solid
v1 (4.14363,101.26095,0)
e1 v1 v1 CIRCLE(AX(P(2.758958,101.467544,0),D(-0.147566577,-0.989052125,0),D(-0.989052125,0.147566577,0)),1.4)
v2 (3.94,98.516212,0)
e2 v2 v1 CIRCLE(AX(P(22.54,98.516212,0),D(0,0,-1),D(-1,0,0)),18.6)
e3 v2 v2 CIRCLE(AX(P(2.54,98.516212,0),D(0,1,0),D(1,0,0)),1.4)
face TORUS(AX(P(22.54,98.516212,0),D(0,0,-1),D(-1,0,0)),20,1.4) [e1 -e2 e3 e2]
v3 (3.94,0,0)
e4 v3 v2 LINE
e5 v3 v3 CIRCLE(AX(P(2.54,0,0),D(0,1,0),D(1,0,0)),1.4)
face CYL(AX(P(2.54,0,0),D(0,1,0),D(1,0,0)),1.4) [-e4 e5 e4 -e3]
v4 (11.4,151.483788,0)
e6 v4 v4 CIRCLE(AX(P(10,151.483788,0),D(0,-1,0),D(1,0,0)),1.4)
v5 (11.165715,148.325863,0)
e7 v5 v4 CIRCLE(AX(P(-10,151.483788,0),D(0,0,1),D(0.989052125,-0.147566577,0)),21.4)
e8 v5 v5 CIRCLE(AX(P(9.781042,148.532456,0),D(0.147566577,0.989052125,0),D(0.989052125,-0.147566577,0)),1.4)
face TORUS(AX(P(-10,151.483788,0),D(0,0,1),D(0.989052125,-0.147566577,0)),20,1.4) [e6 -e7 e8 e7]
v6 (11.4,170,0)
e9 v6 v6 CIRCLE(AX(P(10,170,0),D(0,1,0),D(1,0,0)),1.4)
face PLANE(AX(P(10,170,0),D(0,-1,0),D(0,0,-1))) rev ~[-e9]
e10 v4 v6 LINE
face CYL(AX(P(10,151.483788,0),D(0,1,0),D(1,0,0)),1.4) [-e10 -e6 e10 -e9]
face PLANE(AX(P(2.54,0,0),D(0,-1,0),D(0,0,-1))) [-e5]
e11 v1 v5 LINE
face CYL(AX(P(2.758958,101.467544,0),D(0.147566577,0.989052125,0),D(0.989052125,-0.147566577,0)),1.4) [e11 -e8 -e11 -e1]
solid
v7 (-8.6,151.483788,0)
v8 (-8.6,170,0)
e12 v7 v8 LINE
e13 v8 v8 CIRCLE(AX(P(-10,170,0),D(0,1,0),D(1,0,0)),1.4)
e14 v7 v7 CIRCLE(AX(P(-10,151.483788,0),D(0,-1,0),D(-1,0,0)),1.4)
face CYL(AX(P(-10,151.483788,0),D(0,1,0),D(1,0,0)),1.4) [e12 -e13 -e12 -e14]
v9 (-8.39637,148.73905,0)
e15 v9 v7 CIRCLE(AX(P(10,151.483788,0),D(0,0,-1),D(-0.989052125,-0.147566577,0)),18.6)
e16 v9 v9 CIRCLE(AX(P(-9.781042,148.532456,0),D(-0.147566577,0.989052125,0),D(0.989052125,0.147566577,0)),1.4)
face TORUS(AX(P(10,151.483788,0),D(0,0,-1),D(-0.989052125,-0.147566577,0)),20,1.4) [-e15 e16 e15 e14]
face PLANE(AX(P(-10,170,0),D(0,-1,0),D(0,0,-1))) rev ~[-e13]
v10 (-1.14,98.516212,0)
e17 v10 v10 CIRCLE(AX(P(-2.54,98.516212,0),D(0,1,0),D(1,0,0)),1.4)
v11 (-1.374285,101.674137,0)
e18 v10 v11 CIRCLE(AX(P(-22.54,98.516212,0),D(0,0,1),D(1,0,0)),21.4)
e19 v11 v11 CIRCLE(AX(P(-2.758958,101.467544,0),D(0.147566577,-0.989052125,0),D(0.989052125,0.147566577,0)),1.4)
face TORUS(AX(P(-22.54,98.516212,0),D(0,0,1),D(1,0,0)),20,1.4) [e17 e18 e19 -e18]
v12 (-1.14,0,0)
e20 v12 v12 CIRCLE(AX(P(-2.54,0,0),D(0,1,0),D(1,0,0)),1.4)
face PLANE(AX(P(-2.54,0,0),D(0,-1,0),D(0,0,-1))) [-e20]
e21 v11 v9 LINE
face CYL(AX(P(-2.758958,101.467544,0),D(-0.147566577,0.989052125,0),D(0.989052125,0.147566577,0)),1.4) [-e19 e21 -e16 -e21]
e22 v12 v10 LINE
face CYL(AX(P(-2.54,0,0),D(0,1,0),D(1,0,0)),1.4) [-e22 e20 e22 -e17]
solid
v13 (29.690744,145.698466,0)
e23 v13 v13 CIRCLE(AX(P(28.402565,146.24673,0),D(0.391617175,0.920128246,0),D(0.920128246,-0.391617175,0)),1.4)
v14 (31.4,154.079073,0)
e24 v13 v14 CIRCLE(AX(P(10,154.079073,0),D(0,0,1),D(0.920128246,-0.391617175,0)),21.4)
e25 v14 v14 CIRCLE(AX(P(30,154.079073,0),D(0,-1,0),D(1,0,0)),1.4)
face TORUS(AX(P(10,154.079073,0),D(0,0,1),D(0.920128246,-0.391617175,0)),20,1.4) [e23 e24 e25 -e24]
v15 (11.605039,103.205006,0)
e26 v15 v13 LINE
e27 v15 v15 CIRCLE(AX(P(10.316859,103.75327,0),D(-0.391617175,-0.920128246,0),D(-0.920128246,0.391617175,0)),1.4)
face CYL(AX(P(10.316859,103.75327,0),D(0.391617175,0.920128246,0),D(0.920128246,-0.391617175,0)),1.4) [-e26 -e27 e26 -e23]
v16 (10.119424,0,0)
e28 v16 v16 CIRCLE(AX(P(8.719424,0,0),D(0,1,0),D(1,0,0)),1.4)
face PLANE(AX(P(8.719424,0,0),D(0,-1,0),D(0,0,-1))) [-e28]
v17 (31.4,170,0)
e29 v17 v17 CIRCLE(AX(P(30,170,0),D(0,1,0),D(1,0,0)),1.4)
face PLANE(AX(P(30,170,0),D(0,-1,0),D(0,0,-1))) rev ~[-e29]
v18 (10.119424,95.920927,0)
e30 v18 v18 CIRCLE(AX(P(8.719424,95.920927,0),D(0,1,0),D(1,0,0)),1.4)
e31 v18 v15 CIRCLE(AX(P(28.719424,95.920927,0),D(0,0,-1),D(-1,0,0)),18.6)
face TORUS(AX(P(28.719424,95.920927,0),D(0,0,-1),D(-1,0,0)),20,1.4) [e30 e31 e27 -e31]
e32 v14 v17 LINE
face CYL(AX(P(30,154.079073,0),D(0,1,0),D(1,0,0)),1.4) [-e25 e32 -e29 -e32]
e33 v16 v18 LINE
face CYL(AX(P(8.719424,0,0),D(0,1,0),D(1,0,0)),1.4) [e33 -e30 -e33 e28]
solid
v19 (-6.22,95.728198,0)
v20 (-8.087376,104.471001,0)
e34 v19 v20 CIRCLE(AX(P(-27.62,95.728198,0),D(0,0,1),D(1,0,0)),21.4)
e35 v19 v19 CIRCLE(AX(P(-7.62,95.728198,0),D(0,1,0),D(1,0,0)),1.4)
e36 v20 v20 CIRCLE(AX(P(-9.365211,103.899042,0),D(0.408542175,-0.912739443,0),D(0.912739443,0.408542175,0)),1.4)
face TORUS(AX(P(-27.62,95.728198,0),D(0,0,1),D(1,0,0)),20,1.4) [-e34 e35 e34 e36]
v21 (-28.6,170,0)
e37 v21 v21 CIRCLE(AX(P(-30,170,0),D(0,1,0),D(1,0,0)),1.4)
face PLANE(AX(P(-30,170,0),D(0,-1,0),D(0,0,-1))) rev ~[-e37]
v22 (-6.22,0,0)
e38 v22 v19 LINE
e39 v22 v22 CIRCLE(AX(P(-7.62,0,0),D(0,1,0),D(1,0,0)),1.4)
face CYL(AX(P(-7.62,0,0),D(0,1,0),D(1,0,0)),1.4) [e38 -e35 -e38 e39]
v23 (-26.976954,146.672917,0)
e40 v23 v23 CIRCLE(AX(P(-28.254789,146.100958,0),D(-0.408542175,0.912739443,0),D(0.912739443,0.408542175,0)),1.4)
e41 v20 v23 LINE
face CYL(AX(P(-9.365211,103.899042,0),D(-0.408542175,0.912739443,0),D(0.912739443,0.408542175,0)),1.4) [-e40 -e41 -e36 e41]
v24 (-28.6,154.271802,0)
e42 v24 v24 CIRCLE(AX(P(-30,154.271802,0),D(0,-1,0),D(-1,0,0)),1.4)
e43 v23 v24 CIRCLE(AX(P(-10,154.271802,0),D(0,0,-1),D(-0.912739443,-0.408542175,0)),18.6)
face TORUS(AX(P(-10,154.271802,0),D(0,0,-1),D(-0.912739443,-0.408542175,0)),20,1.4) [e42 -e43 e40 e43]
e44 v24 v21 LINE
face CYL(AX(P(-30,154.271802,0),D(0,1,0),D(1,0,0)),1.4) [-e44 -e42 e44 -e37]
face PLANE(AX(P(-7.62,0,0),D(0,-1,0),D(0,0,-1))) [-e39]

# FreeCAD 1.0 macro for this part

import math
import FreeCAD as App
import Part
import Sketcher

doc = App.newDocument("Part")
body = doc.addObject("PartDesign::Body", "Body")

# Sketch on XZ plane
sketch1 = doc.addObject("Sketcher::SketchObject", "Sketch")
body.addObject(sketch1)
sketch1.AttachmentSupport = (doc.XZ_Plane, [""])
sketch1.MapMode = "FlatFace"
sketch1.addGeometry(Part.Circle(App.Vector(-7.62, 0, 0), App.Vector(0, 0, 1), 1.4), False)
sketch1.addConstraint([
    Sketcher.Constraint("PointOnObject", 0, 3, -1),
    Sketcher.Constraint("Diameter", 0, 2.8),
    Sketcher.Constraint("DistanceX", 0, 3, -1, 1, 7.62),
])

# Sketch on XY plane
sketch2 = doc.addObject("Sketcher::SketchObject", "Sketch001")
body.addObject(sketch2)
sketch2.AttachmentSupport = (doc.XY_Plane, [""])
sketch2.MapMode = "FlatFace"
sketch2.addGeometry([
    Part.LineSegment(App.Vector(-7.62, 0, 0), App.Vector(-7.62, 95.728198, 0)),  # 0
    Part.ArcOfCircle(Part.Circle(App.Vector(-27.62, 95.728198, 0), App.Vector(0, 0, 1), 20), math.radians(0), math.radians(24.113289)),  # 1
    Part.LineSegment(App.Vector(-9.365211, 103.899042, 0), App.Vector(-28.254789, 146.100958, 0)),  # 2
    Part.ArcOfCircle(Part.Circle(App.Vector(-10, 154.271802, 0), App.Vector(0, 0, 1), 20), math.radians(180), math.radians(204.113289)),  # 3
    Part.LineSegment(App.Vector(-30, 154.271802, 0), App.Vector(-30, 170, 0)),  # 4
], False)
sketch2.addConstraint([
    Sketcher.Constraint("Tangent", 0, 2, 1, 1),
    Sketcher.Constraint("Tangent", 1, 2, 2, 1),
    Sketcher.Constraint("Tangent", 2, 2, 3, 2),
    Sketcher.Constraint("Tangent", 3, 1, 4, 1),
    Sketcher.Constraint("Vertical", 0),
    Sketcher.Constraint("Vertical", 4),
    Sketcher.Constraint("Equal", 1, 3),
    Sketcher.Constraint("PointOnObject", 0, 1, -1),
    Sketcher.Constraint("Radius", 1, 20.0),
    Sketcher.Constraint("DistanceX", 3, 3, -1, 1, 10.0),
    Sketcher.Constraint("DistanceY", -1, 1, 4, 2, 170.0),
    Sketcher.Constraint("DistanceX", 1, 3, -1, 1, 27.62),
    Sketcher.Constraint("DistanceY", 0, 1, 0, 2, 95.728198),
    Sketcher.Constraint("DistanceY", 4, 1, 4, 2, 15.728198),
])
doc.recompute()

additivepipe = doc.addObject("PartDesign::AdditivePipe", "AdditivePipe")
body.addObject(additivepipe)
additivepipe.Profile = sketch1
additivepipe.Spine = (sketch2, ["Edge1", "Edge2", "Edge3", "Edge4", "Edge5"])
body2 = doc.addObject("PartDesign::Body", "Body001")

# Sketch on XZ plane
sketch3 = doc.addObject("Sketcher::SketchObject", "Sketch002")
body2.addObject(sketch3)
sketch3.AttachmentSupport = (doc.getObject("XZ_Plane001"), [""])
sketch3.MapMode = "FlatFace"
sketch3.addGeometry(Part.Circle(App.Vector(-2.54, 0, 0), App.Vector(0, 0, 1), 1.4), False)
sketch3.addConstraint([
    Sketcher.Constraint("PointOnObject", 0, 3, -1),
    Sketcher.Constraint("Diameter", 0, 2.8),
    Sketcher.Constraint("DistanceX", 0, 3, -1, 1, 2.54),
])

# Sketch on XY plane
sketch4 = doc.addObject("Sketcher::SketchObject", "Sketch003")
body2.addObject(sketch4)
sketch4.AttachmentSupport = (doc.getObject("XY_Plane001"), [""])
sketch4.MapMode = "FlatFace"
sketch4.addGeometry([
    Part.LineSegment(App.Vector(-2.54, 0, 0), App.Vector(-2.54, 98.516212, 0)),  # 0
    Part.ArcOfCircle(Part.Circle(App.Vector(-22.54, 98.516212, 0), App.Vector(0, 0, 1), 20), math.radians(0), math.radians(8.485932)),  # 1
    Part.LineSegment(App.Vector(-2.758958, 101.467544, 0), App.Vector(-9.781042, 148.532456, 0)),  # 2
    Part.ArcOfCircle(Part.Circle(App.Vector(10, 151.483788, 0), App.Vector(0, 0, 1), 20), math.radians(-180), math.radians(-171.514068)),  # 3
    Part.LineSegment(App.Vector(-10, 151.483788, 0), App.Vector(-10, 170, 0)),  # 4
], False)
sketch4.addConstraint([
    Sketcher.Constraint("Tangent", 0, 2, 1, 1),
    Sketcher.Constraint("Tangent", 1, 2, 2, 1),
    Sketcher.Constraint("Tangent", 2, 2, 3, 2),
    Sketcher.Constraint("Tangent", 3, 1, 4, 1),
    Sketcher.Constraint("Vertical", 0),
    Sketcher.Constraint("Vertical", 4),
    Sketcher.Constraint("Equal", 1, 3),
    Sketcher.Constraint("PointOnObject", 0, 1, -1),
    Sketcher.Constraint("Radius", 1, 20.0),
    Sketcher.Constraint("DistanceX", -1, 1, 3, 3, 10.0),
    Sketcher.Constraint("DistanceY", -1, 1, 4, 2, 170.0),
    Sketcher.Constraint("DistanceX", 1, 3, -1, 1, 22.54),
    Sketcher.Constraint("DistanceY", 0, 1, 0, 2, 98.516212),
    Sketcher.Constraint("DistanceY", 4, 1, 4, 2, 18.516212),
])
doc.recompute()

additivepipe2 = doc.addObject("PartDesign::AdditivePipe", "AdditivePipe001")
body2.addObject(additivepipe2)
additivepipe2.Profile = sketch3
additivepipe2.Spine = (sketch4, ["Edge1", "Edge2", "Edge3", "Edge4", "Edge5"])
body3 = doc.addObject("PartDesign::Body", "Body002")

# Sketch on XZ plane
sketch5 = doc.addObject("Sketcher::SketchObject", "Sketch004")
body3.addObject(sketch5)
sketch5.AttachmentSupport = (doc.getObject("XZ_Plane002"), [""])
sketch5.MapMode = "FlatFace"
sketch5.addGeometry(Part.Circle(App.Vector(2.54, 0, 0), App.Vector(0, 0, 1), 1.4), False)
sketch5.addConstraint([
    Sketcher.Constraint("PointOnObject", 0, 3, -1),
    Sketcher.Constraint("Diameter", 0, 2.8),
    Sketcher.Constraint("DistanceX", -1, 1, 0, 3, 2.54),
])

# Sketch on XY plane
sketch6 = doc.addObject("Sketcher::SketchObject", "Sketch005")
body3.addObject(sketch6)
sketch6.AttachmentSupport = (doc.getObject("XY_Plane002"), [""])
sketch6.MapMode = "FlatFace"
sketch6.addGeometry([
    Part.LineSegment(App.Vector(2.54, 0, 0), App.Vector(2.54, 98.516212, 0)),  # 0
    Part.ArcOfCircle(Part.Circle(App.Vector(22.54, 98.516212, 0), App.Vector(0, 0, 1), 20), math.radians(171.514068), math.radians(180)),  # 1
    Part.LineSegment(App.Vector(2.758958, 101.467544, 0), App.Vector(9.781042, 148.532456, 0)),  # 2
    Part.ArcOfCircle(Part.Circle(App.Vector(-10, 151.483788, 0), App.Vector(0, 0, 1), 20), math.radians(-8.485932), math.radians(0)),  # 3
    Part.LineSegment(App.Vector(10, 151.483788, 0), App.Vector(10, 170, 0)),  # 4
], False)
sketch6.addConstraint([
    Sketcher.Constraint("Tangent", 0, 2, 1, 2),
    Sketcher.Constraint("Tangent", 1, 1, 2, 1),
    Sketcher.Constraint("Tangent", 2, 2, 3, 1),
    Sketcher.Constraint("Tangent", 3, 2, 4, 1),
    Sketcher.Constraint("Vertical", 0),
    Sketcher.Constraint("Vertical", 4),
    Sketcher.Constraint("Equal", 1, 3),
    Sketcher.Constraint("PointOnObject", 0, 1, -1),
    Sketcher.Constraint("Radius", 1, 20.0),
    Sketcher.Constraint("DistanceX", 3, 3, -1, 1, 10.0),
    Sketcher.Constraint("DistanceY", -1, 1, 4, 2, 170.0),
    Sketcher.Constraint("DistanceX", -1, 1, 1, 3, 22.54),
    Sketcher.Constraint("DistanceY", 0, 1, 0, 2, 98.516212),
    Sketcher.Constraint("DistanceY", 4, 1, 4, 2, 18.516212),
])
doc.recompute()

additivepipe3 = doc.addObject("PartDesign::AdditivePipe", "AdditivePipe002")
body3.addObject(additivepipe3)
additivepipe3.Profile = sketch5
additivepipe3.Spine = (sketch6, ["Edge1", "Edge2", "Edge3", "Edge4", "Edge5"])
body4 = doc.addObject("PartDesign::Body", "Body003")

# Sketch on XZ plane
sketch7 = doc.addObject("Sketcher::SketchObject", "Sketch006")
body4.addObject(sketch7)
sketch7.AttachmentSupport = (doc.getObject("XZ_Plane003"), [""])
sketch7.MapMode = "FlatFace"
sketch7.addGeometry(Part.Circle(App.Vector(8.719424, 0, 0), App.Vector(0, 0, 1), 1.4), False)
sketch7.addConstraint([
    Sketcher.Constraint("PointOnObject", 0, 3, -1),
    Sketcher.Constraint("Diameter", 0, 2.8),
    Sketcher.Constraint("DistanceX", -1, 1, 0, 3, 8.719424),
])

# Sketch on XY plane
sketch8 = doc.addObject("Sketcher::SketchObject", "Sketch007")
body4.addObject(sketch8)
sketch8.AttachmentSupport = (doc.getObject("XY_Plane003"), [""])
sketch8.MapMode = "FlatFace"
sketch8.addGeometry([
    Part.LineSegment(App.Vector(8.719424, 0, 0), App.Vector(8.719424, 95.920927, 0)),  # 0
    Part.ArcOfCircle(Part.Circle(App.Vector(28.719424, 95.920927, 0), App.Vector(0, 0, 1), 20), math.radians(156.944838), math.radians(180)),  # 1
    Part.LineSegment(App.Vector(10.316859, 103.75327, 0), App.Vector(28.402565, 146.24673, 0)),  # 2
    Part.ArcOfCircle(Part.Circle(App.Vector(10, 154.079073, 0), App.Vector(0, 0, 1), 20), math.radians(-23.055162), math.radians(0)),  # 3
    Part.LineSegment(App.Vector(30, 154.079073, 0), App.Vector(30, 170, 0)),  # 4
], False)
sketch8.addConstraint([
    Sketcher.Constraint("Tangent", 0, 2, 1, 2),
    Sketcher.Constraint("Tangent", 1, 1, 2, 1),
    Sketcher.Constraint("Tangent", 2, 2, 3, 1),
    Sketcher.Constraint("Tangent", 3, 2, 4, 1),
    Sketcher.Constraint("Vertical", 0),
    Sketcher.Constraint("Vertical", 4),
    Sketcher.Constraint("Equal", 1, 3),
    Sketcher.Constraint("PointOnObject", 0, 1, -1),
    Sketcher.Constraint("Radius", 1, 20.0),
    Sketcher.Constraint("DistanceX", -1, 1, 3, 3, 10.0),
    Sketcher.Constraint("DistanceY", -1, 1, 4, 2, 170.0),
    Sketcher.Constraint("DistanceY", 0, 1, 0, 2, 95.920927),
    Sketcher.Constraint("DistanceY", 4, 1, 4, 2, 15.920927),
    Sketcher.Constraint("DistanceX", -1, 1, 1, 1, 10.316859),
])
doc.recompute()

additivepipe4 = doc.addObject("PartDesign::AdditivePipe", "AdditivePipe003")
body4.addObject(additivepipe4)
additivepipe4.Profile = sketch7
additivepipe4.Spine = (sketch8, ["Edge1", "Edge2", "Edge3", "Edge4", "Edge5"])

doc.recompute()
